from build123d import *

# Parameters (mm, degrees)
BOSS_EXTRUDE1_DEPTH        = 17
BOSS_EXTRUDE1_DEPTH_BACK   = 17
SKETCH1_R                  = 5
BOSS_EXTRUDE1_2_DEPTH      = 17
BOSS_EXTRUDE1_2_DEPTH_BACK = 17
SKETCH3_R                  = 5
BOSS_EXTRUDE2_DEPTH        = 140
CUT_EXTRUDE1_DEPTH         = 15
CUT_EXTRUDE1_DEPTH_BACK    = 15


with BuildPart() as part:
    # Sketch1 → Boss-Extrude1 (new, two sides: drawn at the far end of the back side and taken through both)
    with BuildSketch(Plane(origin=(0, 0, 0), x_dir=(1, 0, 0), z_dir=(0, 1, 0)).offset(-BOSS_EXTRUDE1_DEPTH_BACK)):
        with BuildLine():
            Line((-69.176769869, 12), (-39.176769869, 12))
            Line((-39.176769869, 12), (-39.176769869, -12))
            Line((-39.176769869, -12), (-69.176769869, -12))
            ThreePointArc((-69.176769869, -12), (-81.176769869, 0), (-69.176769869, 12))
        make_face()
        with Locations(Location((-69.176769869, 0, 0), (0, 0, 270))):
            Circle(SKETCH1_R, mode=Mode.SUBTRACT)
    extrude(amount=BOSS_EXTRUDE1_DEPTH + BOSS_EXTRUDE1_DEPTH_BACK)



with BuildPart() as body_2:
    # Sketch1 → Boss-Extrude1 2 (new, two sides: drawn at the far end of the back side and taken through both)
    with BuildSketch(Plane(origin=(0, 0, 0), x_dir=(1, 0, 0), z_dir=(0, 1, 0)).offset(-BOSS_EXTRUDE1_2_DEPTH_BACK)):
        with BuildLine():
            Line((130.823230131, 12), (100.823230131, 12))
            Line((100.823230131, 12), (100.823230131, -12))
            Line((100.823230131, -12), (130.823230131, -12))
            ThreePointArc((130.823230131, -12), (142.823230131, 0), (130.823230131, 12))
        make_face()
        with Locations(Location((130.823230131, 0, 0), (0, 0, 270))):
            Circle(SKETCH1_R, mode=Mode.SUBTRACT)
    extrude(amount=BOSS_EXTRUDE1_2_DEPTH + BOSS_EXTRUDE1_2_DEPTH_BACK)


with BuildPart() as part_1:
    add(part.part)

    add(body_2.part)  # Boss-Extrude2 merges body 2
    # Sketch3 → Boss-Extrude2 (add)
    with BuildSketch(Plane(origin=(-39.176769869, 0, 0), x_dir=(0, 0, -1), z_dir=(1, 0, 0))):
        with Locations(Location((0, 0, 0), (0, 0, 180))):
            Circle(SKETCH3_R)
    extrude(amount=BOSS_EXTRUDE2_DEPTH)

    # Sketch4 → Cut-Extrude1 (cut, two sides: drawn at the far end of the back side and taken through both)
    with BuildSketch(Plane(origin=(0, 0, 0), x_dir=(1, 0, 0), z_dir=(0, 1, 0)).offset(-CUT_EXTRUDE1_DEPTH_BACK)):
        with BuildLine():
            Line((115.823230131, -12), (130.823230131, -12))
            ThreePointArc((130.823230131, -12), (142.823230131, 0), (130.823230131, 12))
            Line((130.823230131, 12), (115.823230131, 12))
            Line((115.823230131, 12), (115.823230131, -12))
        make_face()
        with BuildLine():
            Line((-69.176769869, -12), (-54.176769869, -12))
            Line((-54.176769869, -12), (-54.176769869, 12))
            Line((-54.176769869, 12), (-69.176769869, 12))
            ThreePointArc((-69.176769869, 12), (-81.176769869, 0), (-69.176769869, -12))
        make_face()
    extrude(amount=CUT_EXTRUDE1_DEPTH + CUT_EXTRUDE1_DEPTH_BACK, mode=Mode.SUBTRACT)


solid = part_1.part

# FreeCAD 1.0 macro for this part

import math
import FreeCAD as App
import Part
import Sketcher

doc = App.newDocument("Part")
body = doc.addObject("PartDesign::Body", "Body")

# Sketch on XZ plane
sketch1 = doc.addObject("Sketcher::SketchObject", "Sketch")
body.addObject(sketch1)
sketch1.AttachmentSupport = (doc.XZ_Plane, [""])
sketch1.MapMode = "FlatFace"
sketch1.addGeometry([
    Part.LineSegment(App.Vector(-39, -12, 0), App.Vector(-69, -12, 0)),  # 0
    Part.ArcOfCircle(Part.Circle(App.Vector(-69, 0, 0), App.Vector(0, 0, 1), 12), math.radians(90), math.radians(270)),  # 1
    Part.LineSegment(App.Vector(-69, 12, 0), App.Vector(-39, 12, 0)),  # 2
    Part.LineSegment(App.Vector(-39, 12, 0), App.Vector(-39, -12, 0)),  # 3
    Part.Circle(App.Vector(-69, 0, 0), App.Vector(0, 0, 1), 5),  # 4
], False)
sketch1.addConstraint([
    Sketcher.Constraint("Tangent", 0, 2, 1, 2),
    Sketcher.Constraint("Tangent", 1, 1, 2, 1),
    Sketcher.Constraint("Coincident", 2, 2, 3, 1),
    Sketcher.Constraint("Coincident", 3, 2, 0, 1),
    Sketcher.Constraint("Horizontal", 0),
    Sketcher.Constraint("Horizontal", 2),
    Sketcher.Constraint("Vertical", 3),
    Sketcher.Constraint("Coincident", 4, 3, 1, 3),
    Sketcher.Constraint("PointOnObject", 1, 3, -1),
    Sketcher.Constraint("Diameter", 4, 10.0),
    Sketcher.Constraint("Radius", 1, 12.0),
    Sketcher.Constraint("DistanceX", 0, 2, 0, 1, 30.0),
    Sketcher.Constraint("DistanceX", 1, 3, -1, 1, 69.17677),
])
pad1 = doc.addObject("PartDesign::Pad", "Pad")
body.addObject(pad1)
pad1.Profile = sketch1
pad1.Type = "TwoLengths"
pad1.Length = 17
pad1.Length2 = 17
pad1.Reversed = True
body2 = doc.addObject("PartDesign::Body", "Body001")

# Sketch on XZ plane
sketch2 = doc.addObject("Sketcher::SketchObject", "Sketch001")
body2.addObject(sketch2)
sketch2.AttachmentSupport = (doc.getObject("XZ_Plane001"), [""])
sketch2.MapMode = "FlatFace"
sketch2.addGeometry([
    Part.LineSegment(App.Vector(131, -12, 0), App.Vector(101, -12, 0)),  # 0
    Part.LineSegment(App.Vector(101, -12, 0), App.Vector(101, 12, 0)),  # 1
    Part.LineSegment(App.Vector(101, 12, 0), App.Vector(131, 12, 0)),  # 2
    Part.ArcOfCircle(Part.Circle(App.Vector(131, 0, 0), App.Vector(0, 0, 1), 12), math.radians(-90), math.radians(90)),  # 3
    Part.Circle(App.Vector(131, 0, 0), App.Vector(0, 0, 1), 5),  # 4
], False)
sketch2.addConstraint([
    Sketcher.Constraint("Coincident", 0, 2, 1, 1),
    Sketcher.Constraint("Coincident", 1, 2, 2, 1),
    Sketcher.Constraint("Tangent", 2, 2, 3, 2),
    Sketcher.Constraint("Tangent", 3, 1, 0, 1),
    Sketcher.Constraint("Horizontal", 0),
    Sketcher.Constraint("Vertical", 1),
    Sketcher.Constraint("Horizontal", 2),
    Sketcher.Constraint("Coincident", 4, 3, 3, 3),
    Sketcher.Constraint("PointOnObject", 3, 3, -1),
    Sketcher.Constraint("Diameter", 4, 10.0),
    Sketcher.Constraint("Radius", 3, 12.0),
    Sketcher.Constraint("DistanceX", 0, 2, 0, 1, 30.0),
    Sketcher.Constraint("DistanceX", -1, 1, 3, 3, 130.82323),
])
pad2 = doc.addObject("PartDesign::Pad", "Pad001")
body2.addObject(pad2)
pad2.Profile = sketch2
pad2.Type = "TwoLengths"
pad2.Length = 17
pad2.Length2 = 17
pad2.Reversed = True
body.AllowCompound = True
doc.recompute()

boolean = doc.addObject("PartDesign::Boolean", "Boolean")
body.addObject(boolean)
boolean.Type = "Fuse"
boolean.addObjects([body2])

# Sketch on YZ plane
sketch3 = doc.addObject("Sketcher::SketchObject", "Sketch002")
body.addObject(sketch3)
sketch3.AttachmentSupport = (doc.YZ_Plane, [""])
sketch3.MapMode = "FlatFace"
sketch3.AttachmentOffset = App.Placement(App.Vector(0, 0, -39.17677), App.Rotation())
sketch3.addGeometry(Part.Circle(App.Vector(0, 0, 0), App.Vector(0, 0, 1), 5), False)
sketch3.addConstraint([
    Sketcher.Constraint("Coincident", 0, 3, -1, 1),
    Sketcher.Constraint("Diameter", 0, 10.0),
])
pad3 = doc.addObject("PartDesign::Pad", "Pad002")
body.addObject(pad3)
pad3.Profile = sketch3
pad3.Length = 140

# Sketch on XZ plane
sketch4 = doc.addObject("Sketcher::SketchObject", "Sketch003")
body.addObject(sketch4)
sketch4.AttachmentSupport = (doc.XZ_Plane, [""])
sketch4.MapMode = "FlatFace"
sketch4.addGeometry([
    Part.LineSegment(App.Vector(116, 12, 0), App.Vector(131, 12, 0)),  # 0
    Part.ArcOfCircle(Part.Circle(App.Vector(131, 0, 0), App.Vector(0, 0, 1), 12), math.radians(-90), math.radians(90)),  # 1
    Part.LineSegment(App.Vector(131, -12, 0), App.Vector(116, -12, 0)),  # 2
    Part.LineSegment(App.Vector(116, -12, 0), App.Vector(116, 12, 0)),  # 3
    Part.LineSegment(App.Vector(-69, 12, 0), App.Vector(-54, 12, 0)),  # 4
    Part.LineSegment(App.Vector(-54, 12, 0), App.Vector(-54, -12, 0)),  # 5
    Part.LineSegment(App.Vector(-54, -12, 0), App.Vector(-69, -12, 0)),  # 6
    Part.ArcOfCircle(Part.Circle(App.Vector(-69, 0, 0), App.Vector(0, 0, 1), 12), math.radians(90), math.radians(270)),  # 7
], False)
sketch4.addConstraint([
    Sketcher.Constraint("Tangent", 0, 2, 1, 2),
    Sketcher.Constraint("Tangent", 1, 1, 2, 1),
    Sketcher.Constraint("Coincident", 2, 2, 3, 1),
    Sketcher.Constraint("Coincident", 3, 2, 0, 1),
    Sketcher.Constraint("Coincident", 4, 2, 5, 1),
    Sketcher.Constraint("Coincident", 5, 2, 6, 1),
    Sketcher.Constraint("Tangent", 6, 2, 7, 2),
    Sketcher.Constraint("Tangent", 7, 1, 4, 1),
    Sketcher.Constraint("Horizontal", 0),
    Sketcher.Constraint("Horizontal", 2),
    Sketcher.Constraint("Vertical", 3),
    Sketcher.Constraint("Horizontal", 4),
    Sketcher.Constraint("Vertical", 5),
    Sketcher.Constraint("Horizontal", 6),
    Sketcher.Constraint("Equal", 1, 7),
    Sketcher.Constraint("PointOnObject", 1, 3, -1),
    Sketcher.Constraint("PointOnObject", 7, 3, -1),
    Sketcher.Constraint("Equal", 2, 4),
    Sketcher.Constraint("Radius", 1, 12.0),
    Sketcher.Constraint("DistanceX", 0, 1, 0, 2, 15.0),
    Sketcher.Constraint("DistanceX", 7, 3, 1, 3, 200.0),
    Sketcher.Constraint("DistanceX", -1, 1, 1, 3, 130.82323),
])
pocket1 = doc.addObject("PartDesign::Pocket", "Pocket")
body.addObject(pocket1)
pocket1.Profile = sketch4
pocket1.Type = "TwoLengths"
pocket1.Length = 15
pocket1.Length2 = 15

doc.recompute()
